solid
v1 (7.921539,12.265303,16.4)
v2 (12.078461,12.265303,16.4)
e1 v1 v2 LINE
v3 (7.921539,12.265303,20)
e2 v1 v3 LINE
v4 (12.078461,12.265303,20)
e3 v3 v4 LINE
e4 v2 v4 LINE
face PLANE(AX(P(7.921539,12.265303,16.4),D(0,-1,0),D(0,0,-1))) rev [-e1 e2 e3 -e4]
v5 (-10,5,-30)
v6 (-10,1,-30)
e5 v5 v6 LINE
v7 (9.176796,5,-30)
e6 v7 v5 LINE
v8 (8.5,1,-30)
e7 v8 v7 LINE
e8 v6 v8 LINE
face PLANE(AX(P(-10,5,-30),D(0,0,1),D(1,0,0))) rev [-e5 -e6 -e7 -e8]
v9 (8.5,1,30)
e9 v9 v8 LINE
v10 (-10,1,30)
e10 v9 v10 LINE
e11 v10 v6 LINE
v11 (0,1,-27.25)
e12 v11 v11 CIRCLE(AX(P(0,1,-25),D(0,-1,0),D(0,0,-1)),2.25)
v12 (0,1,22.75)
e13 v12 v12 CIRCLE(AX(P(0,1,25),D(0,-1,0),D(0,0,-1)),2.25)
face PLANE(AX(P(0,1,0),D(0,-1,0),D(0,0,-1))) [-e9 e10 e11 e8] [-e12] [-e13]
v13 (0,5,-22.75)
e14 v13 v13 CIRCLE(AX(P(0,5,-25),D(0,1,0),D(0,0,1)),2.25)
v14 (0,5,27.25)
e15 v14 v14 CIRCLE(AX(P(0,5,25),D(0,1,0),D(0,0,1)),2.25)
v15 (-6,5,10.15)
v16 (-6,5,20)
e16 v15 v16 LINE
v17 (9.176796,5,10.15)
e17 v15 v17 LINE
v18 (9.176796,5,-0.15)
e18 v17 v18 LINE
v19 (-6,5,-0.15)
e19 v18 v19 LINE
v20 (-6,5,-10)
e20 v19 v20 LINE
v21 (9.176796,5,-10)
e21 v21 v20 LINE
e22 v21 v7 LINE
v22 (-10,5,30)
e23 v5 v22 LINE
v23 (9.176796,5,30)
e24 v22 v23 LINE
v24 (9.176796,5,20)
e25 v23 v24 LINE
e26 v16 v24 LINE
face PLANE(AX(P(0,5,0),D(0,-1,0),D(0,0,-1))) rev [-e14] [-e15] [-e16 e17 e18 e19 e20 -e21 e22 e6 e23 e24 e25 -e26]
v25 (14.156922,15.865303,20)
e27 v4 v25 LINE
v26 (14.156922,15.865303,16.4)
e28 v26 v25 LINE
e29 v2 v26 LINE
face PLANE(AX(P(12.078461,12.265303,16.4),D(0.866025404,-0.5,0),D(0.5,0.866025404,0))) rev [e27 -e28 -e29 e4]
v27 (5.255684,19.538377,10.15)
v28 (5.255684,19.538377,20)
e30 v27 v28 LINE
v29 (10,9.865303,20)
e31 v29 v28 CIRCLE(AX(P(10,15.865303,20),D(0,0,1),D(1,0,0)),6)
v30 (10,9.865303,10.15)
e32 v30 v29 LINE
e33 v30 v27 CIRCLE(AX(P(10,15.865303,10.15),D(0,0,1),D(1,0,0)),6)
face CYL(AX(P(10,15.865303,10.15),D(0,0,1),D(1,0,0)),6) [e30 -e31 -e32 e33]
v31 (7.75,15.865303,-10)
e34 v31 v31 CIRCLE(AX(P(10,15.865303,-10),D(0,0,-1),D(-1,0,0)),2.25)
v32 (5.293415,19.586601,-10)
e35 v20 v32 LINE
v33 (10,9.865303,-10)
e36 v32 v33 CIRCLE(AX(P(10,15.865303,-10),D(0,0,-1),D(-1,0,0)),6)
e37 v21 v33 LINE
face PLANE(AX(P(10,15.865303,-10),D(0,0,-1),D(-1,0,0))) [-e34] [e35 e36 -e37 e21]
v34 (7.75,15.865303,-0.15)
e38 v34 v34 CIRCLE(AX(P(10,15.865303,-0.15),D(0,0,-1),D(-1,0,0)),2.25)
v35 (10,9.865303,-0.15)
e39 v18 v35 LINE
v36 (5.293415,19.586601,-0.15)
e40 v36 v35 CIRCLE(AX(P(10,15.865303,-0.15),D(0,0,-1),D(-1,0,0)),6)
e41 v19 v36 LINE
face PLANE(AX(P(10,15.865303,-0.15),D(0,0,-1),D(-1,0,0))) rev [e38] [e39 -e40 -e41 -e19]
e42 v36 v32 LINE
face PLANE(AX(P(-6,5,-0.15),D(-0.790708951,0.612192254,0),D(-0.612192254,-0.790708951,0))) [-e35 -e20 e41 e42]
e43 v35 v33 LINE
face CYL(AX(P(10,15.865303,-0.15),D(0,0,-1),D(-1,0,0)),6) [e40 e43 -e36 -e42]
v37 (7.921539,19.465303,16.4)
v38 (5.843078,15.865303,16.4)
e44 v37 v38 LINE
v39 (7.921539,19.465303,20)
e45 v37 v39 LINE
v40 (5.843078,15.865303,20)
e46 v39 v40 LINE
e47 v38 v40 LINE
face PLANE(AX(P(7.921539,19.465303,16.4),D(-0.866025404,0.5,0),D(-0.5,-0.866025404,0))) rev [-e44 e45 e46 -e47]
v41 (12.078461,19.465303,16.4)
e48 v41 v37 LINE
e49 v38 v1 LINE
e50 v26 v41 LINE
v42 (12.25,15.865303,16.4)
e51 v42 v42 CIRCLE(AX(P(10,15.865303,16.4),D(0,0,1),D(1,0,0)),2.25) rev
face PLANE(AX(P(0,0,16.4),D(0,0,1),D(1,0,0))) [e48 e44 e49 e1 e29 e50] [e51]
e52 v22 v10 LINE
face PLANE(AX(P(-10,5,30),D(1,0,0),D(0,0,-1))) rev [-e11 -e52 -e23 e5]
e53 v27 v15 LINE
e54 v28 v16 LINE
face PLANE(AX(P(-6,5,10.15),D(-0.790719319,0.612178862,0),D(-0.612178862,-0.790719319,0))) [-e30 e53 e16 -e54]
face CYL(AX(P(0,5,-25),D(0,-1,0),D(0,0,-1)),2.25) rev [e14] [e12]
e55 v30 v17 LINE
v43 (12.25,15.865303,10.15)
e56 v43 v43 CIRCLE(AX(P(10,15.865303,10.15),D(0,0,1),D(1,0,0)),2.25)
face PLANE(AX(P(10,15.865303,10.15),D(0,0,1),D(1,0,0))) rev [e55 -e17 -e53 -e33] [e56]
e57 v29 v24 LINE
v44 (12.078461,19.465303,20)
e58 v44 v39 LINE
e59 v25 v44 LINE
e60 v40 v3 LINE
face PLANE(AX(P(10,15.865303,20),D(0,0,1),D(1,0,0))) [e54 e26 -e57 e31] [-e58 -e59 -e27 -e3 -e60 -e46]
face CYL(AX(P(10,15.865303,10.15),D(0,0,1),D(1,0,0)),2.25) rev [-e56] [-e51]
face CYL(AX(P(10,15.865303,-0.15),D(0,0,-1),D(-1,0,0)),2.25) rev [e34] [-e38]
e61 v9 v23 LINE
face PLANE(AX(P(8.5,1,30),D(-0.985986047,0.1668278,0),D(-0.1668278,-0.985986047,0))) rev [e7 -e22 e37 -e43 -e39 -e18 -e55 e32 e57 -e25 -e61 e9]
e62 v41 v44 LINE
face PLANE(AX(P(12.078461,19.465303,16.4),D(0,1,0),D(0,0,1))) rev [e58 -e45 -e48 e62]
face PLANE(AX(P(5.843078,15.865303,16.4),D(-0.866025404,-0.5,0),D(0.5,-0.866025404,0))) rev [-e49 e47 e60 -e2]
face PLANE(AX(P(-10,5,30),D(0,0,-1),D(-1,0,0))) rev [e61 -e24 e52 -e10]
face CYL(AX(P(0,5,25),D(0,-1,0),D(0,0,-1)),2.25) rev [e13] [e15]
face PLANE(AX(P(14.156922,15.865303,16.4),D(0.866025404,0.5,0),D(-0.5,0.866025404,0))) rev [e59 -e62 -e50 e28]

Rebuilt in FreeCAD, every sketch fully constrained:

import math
import FreeCAD as App
import Part
import Sketcher
Q = App.Units.Quantity

doc = App.newDocument("Part")
params = doc.addObject("Spreadsheet::Sheet", "Params")
for row, (alias, value) in enumerate([
    ("sketch1_diameter", "4.5 mm"),
    ("sketch1_width", "20 mm"),
    ("sketch1_height", "60 mm"),
    ("pad1_length", "5 mm"),
    ("sketch2_radius", "6 mm"),
    ("sketch2_diameter", "4.5 mm"),
    ("sketch2_width", "16 mm"),
    ("pad2_length", "9.85 mm"),
    ("sketch3_radius", "6 mm"),
    ("sketch3_diameter", "4.5 mm"),
    ("sketch3_width", "16 mm"),
    ("pad3_length", "9.85 mm"),
    ("pocket1_length", "1 mm"),
    ("sketch5_width", "1.5 mm"),
    ("pocket3_length", "3.6 mm"),
], start=1):
    params.set(f"A{row}", alias)
    params.set(f"B{row}", "=" + value)
    params.setAlias(f"B{row}", alias)

body = doc.addObject("PartDesign::Body", "Body")

sketch1 = doc.addObject("Sketcher::SketchObject", "Sketch")
body.addObject(sketch1)
sketch1.AttachmentSupport = (doc.XZ_Plane, [""])
sketch1.MapMode = "FlatFace"
sketch1.addGeometry([
    Part.LineSegment(App.Vector(-10, -30, 0), App.Vector(-10, 30, 0)),
    Part.LineSegment(App.Vector(-10, 30, 0), App.Vector(10, 30, 0)),
    Part.LineSegment(App.Vector(10, 30, 0), App.Vector(10, -30, 0)),
    Part.LineSegment(App.Vector(10, -30, 0), App.Vector(-10, -30, 0)),
    Part.Circle(App.Vector(0, 25, 0), App.Vector(0, 0, 1), 2.2),
    Part.Circle(App.Vector(0, -25, 0), App.Vector(0, 0, 1), 2.2),
], False)
sketch1.addConstraint([
    Sketcher.Constraint("Coincident", 0, 2, 1, 1),
    Sketcher.Constraint("Coincident", 1, 2, 2, 1),
    Sketcher.Constraint("Coincident", 2, 2, 3, 1),
    Sketcher.Constraint("Coincident", 3, 2, 0, 1),
    Sketcher.Constraint("Vertical", 0),
    Sketcher.Constraint("Horizontal", 1),
    Sketcher.Constraint("Vertical", 2),
    Sketcher.Constraint("Horizontal", 3),
    Sketcher.Constraint("Equal", 4, 5),
    Sketcher.Constraint("Symmetric", 4, 3, 5, 3, -1, 1),
    Sketcher.Constraint("Symmetric", 0, 2, 2, 2, -1, 1),
    Sketcher.Constraint("PointOnObject", 4, 3, -2),
    Sketcher.Constraint("Diameter", 4, 4.5),
    Sketcher.Constraint("DistanceX", 1, 1, 1, 2, 20.0),
    Sketcher.Constraint("DistanceY", 0, 1, 0, 2, 60.0),
    Sketcher.Constraint("DistanceY", -1, 1, 4, 3, 25.0),
])
sketch1.setExpression("Constraints[12]", "Params.sketch1_diameter")
sketch1.setExpression("Constraints[13]", "Params.sketch1_width")
sketch1.setExpression("Constraints[14]", "Params.sketch1_height")
pad1 = doc.addObject("PartDesign::Pad", "Pad")
body.addObject(pad1)
pad1.Profile = sketch1
pad1.setExpression("Length", "Params.pad1_length")
pad1.Reversed = True

sketch2 = doc.addObject("Sketcher::SketchObject", "Sketch001")
body.addObject(sketch2)
sketch2.AttachmentSupport = (doc.XY_Plane, [""])
sketch2.MapMode = "FlatFace"
sketch2.AttachmentOffset = App.Placement(App.Vector(0, 0, 20), App.Rotation())
sketch2.addGeometry([
    Part.LineSegment(App.Vector(10, 5, 0), App.Vector(10, 9.9, 0)),
    Part.ArcOfCircle(Part.Circle(App.Vector(10, 15.9, 0), App.Vector(0, 0, 1), 6), math.radians(-90), math.radians(142)),
    Part.LineSegment(App.Vector(5.3, 19.5, 0), App.Vector(-6, 5, 0)),
    Part.LineSegment(App.Vector(-6, 5, 0), App.Vector(10, 5, 0)),
    Part.Circle(App.Vector(10, 15.9, 0), App.Vector(0, 0, 1), 2.2),
], False)
sketch2.addConstraint([
    Sketcher.Constraint("Coincident", 0, 2, 1, 1),
    Sketcher.Constraint("Tangent", 1, 2, 2, 1),
    Sketcher.Constraint("Coincident", 2, 2, 3, 1),
    Sketcher.Constraint("Coincident", 3, 2, 0, 1),
    Sketcher.Constraint("Vertical", 0),
    Sketcher.Constraint("Horizontal", 3),
    Sketcher.Constraint("Coincident", 4, 3, 1, 3),
    Sketcher.Constraint("Vertical", 4, 3, 0, 2),
    Sketcher.Constraint("Radius", 1, 6.0),
    Sketcher.Constraint("Diameter", 4, 4.5),
    Sketcher.Constraint("DistanceX", 3, 1, 3, 2, 16.0),
    Sketcher.Constraint("DistanceX", -1, 1, 1, 3, 10.0),
    Sketcher.Constraint("DistanceY", -1, 1, 2, 2, 5.0),
    Sketcher.Constraint("DistanceY", 0, 1, 0, 2, 4.865303),
])
sketch2.setExpression("Constraints[8]", "Params.sketch2_radius")
sketch2.setExpression("Constraints[9]", "Params.sketch2_diameter")
sketch2.setExpression("Constraints[10]", "Params.sketch2_width")
pad2 = doc.addObject("PartDesign::Pad", "Pad001")
body.addObject(pad2)
pad2.Profile = sketch2
pad2.setExpression("Length", "Params.pad2_length")
pad2.Reversed = True

sketch3 = doc.addObject("Sketcher::SketchObject", "Sketch002")
body.addObject(sketch3)
sketch3.AttachmentSupport = (doc.XY_Plane, [""])
sketch3.MapMode = "FlatFace"
sketch3.AttachmentOffset = App.Placement(App.Vector(0, 0, -10), App.Rotation())
sketch3.addGeometry([
    Part.LineSegment(App.Vector(10, 9.9, 0), App.Vector(10, 5, 0)),
    Part.LineSegment(App.Vector(10, 5, 0), App.Vector(-6, 5, 0)),
    Part.LineSegment(App.Vector(-6, 5, 0), App.Vector(5.3, 19.6, 0)),
    Part.ArcOfCircle(Part.Circle(App.Vector(10, 15.9, 0), App.Vector(0, 0, 1), 6), math.radians(-90), math.radians(142)),
    Part.Circle(App.Vector(10, 15.9, 0), App.Vector(0, 0, 1), 2.2),
], False)
sketch3.addConstraint([
    Sketcher.Constraint("Coincident", 0, 2, 1, 1),
    Sketcher.Constraint("Coincident", 1, 2, 2, 1),
    Sketcher.Constraint("Coincident", 2, 2, 3, 2),
    Sketcher.Constraint("Coincident", 3, 1, 0, 1),
    Sketcher.Constraint("Vertical", 0),
    Sketcher.Constraint("Horizontal", 1),
    Sketcher.Constraint("Coincident", 4, 3, 3, 3),
    Sketcher.Constraint("Vertical", 4, 3, 0, 2),
    Sketcher.Constraint("Radius", 3, 6.0),
    Sketcher.Constraint("Diameter", 4, 4.5),
    Sketcher.Constraint("DistanceX", 1, 2, 1, 1, 16.0),
    Sketcher.Constraint("DistanceX", -1, 1, 3, 3, 10.0),
    Sketcher.Constraint("DistanceY", -1, 1, 0, 2, 5.0),
    Sketcher.Constraint("DistanceY", -1, 1, 2, 2, 19.586601),
    Sketcher.Constraint("DistanceY", 3, 3, 2, 2, 3.721298),
])
sketch3.setExpression("Constraints[8]", "Params.sketch3_radius")
sketch3.setExpression("Constraints[9]", "Params.sketch3_diameter")
sketch3.setExpression("Constraints[10]", "Params.sketch3_width")
pad3 = doc.addObject("PartDesign::Pad", "Pad002")
body.addObject(pad3)
pad3.Profile = sketch3
pad3.setExpression("Length", "Params.pad3_length")

sketch4 = doc.addObject("Sketcher::SketchObject", "Sketch003")
body.addObject(sketch4)
sketch4.AttachmentSupport = (doc.XZ_Plane, [""])
sketch4.MapMode = "FlatFace"
sketch4.addGeometry([
    Part.LineSegment(App.Vector(-15, 35, 0), App.Vector(-15, -38, 0)),
    Part.LineSegment(App.Vector(-15, -38, 0), App.Vector(18, -38, 0)),
    Part.LineSegment(App.Vector(18, -38, 0), App.Vector(18, 35, 0)),
    Part.LineSegment(App.Vector(18, 35, 0), App.Vector(-15, 35, 0)),
], False)
sketch4.addConstraint([
    Sketcher.Constraint("Coincident", 0, 2, 1, 1),
    Sketcher.Constraint("Coincident", 1, 2, 2, 1),
    Sketcher.Constraint("Coincident", 2, 2, 3, 1),
    Sketcher.Constraint("Coincident", 3, 2, 0, 1),
    Sketcher.Constraint("Vertical", 0),
    Sketcher.Constraint("Horizontal", 1),
    Sketcher.Constraint("Vertical", 2),
    Sketcher.Constraint("Horizontal", 3),
    Sketcher.Constraint("DistanceX", 1, 1, 1, 2, 33.827009),
    Sketcher.Constraint("DistanceY", 0, 2, 0, 1, 72.568077),
    Sketcher.Constraint("DistanceY", -1, 1, 2, 2, 34.50557),
    Sketcher.Constraint("DistanceX", 0, 2, -1, 1, 15.424923),
])
pocket1 = doc.addObject("PartDesign::Pocket", "Pocket")
body.addObject(pocket1)
pocket1.Profile = sketch4
pocket1.setExpression("Length", "Params.pocket1_length")

sketch5 = doc.addObject("Sketcher::SketchObject", "Sketch004")
body.addObject(sketch5)
sketch5.AttachmentSupport = (doc.XY_Plane, [""])
sketch5.MapMode = "FlatFace"
sketch5.AttachmentOffset = App.Placement(App.Vector(0, 0, -30), App.Rotation())
sketch5.addGeometry([
    Part.LineSegment(App.Vector(10, 9.9, 0), App.Vector(10, 1, 0)),
    Part.LineSegment(App.Vector(10, 1, 0), App.Vector(8.5, 1, 0)),
    Part.LineSegment(App.Vector(8.5, 1, 0), App.Vector(10, 9.9, 0)),
], False)
sketch5.addConstraint([
    Sketcher.Constraint("Coincident", 0, 2, 1, 1),
    Sketcher.Constraint("Coincident", 1, 2, 2, 1),
    Sketcher.Constraint("Coincident", 2, 2, 0, 1),
    Sketcher.Constraint("Vertical", 0),
    Sketcher.Constraint("Horizontal", 1),
    Sketcher.Constraint("DistanceX", 1, 2, 1, 1, 1.5),
    Sketcher.Constraint("DistanceX", -1, 1, 0, 2, 10.0),
    Sketcher.Constraint("DistanceY", -1, 1, 0, 2, 1.0),
    Sketcher.Constraint("DistanceY", 0, 2, 0, 1, 8.865303),
])
sketch5.setExpression("Constraints[5]", "Params.sketch5_width")
pocket2 = doc.addObject("PartDesign::Pocket", "Pocket001")
body.addObject(pocket2)
pocket2.Profile = sketch5
pocket2.Type = "ThroughAll"
pocket2.Reversed = True

sketch6 = doc.addObject("Sketcher::SketchObject", "Sketch005")
body.addObject(sketch6)
sketch6.AttachmentSupport = (doc.XY_Plane, [""])
sketch6.MapMode = "FlatFace"
sketch6.AttachmentOffset = App.Placement(App.Vector(0, 0, 20), App.Rotation())
sketch6.addGeometry([
    Part.LineSegment(App.Vector(12.1, 12.3, 0), App.Vector(14.2, 15.9, 0)),
    Part.LineSegment(App.Vector(14.2, 15.9, 0), App.Vector(12.1, 19.5, 0)),
    Part.LineSegment(App.Vector(12.1, 19.5, 0), App.Vector(7.9, 19.5, 0)),
    Part.LineSegment(App.Vector(7.9, 19.5, 0), App.Vector(5.8, 15.9, 0)),
    Part.LineSegment(App.Vector(5.8, 15.9, 0), App.Vector(7.9, 12.3, 0)),
    Part.LineSegment(App.Vector(7.9, 12.3, 0), App.Vector(12.1, 12.3, 0)),
], False)
sketch6.addConstraint([
    Sketcher.Constraint("Coincident", 0, 2, 1, 1),
    Sketcher.Constraint("Coincident", 1, 2, 2, 1),
    Sketcher.Constraint("Coincident", 2, 2, 3, 1),
    Sketcher.Constraint("Coincident", 3, 2, 4, 1),
    Sketcher.Constraint("Coincident", 4, 2, 5, 1),
    Sketcher.Constraint("Coincident", 5, 2, 0, 1),
    Sketcher.Constraint("Horizontal", 2),
    Sketcher.Constraint("Horizontal", 5),
    Sketcher.Constraint("Parallel", 0, 3),
    Sketcher.Constraint("Parallel", 1, 4),
    Sketcher.Constraint("Horizontal", 0, 2, 3, 2),
    Sketcher.Constraint("Vertical", 2, 2, 4, 2),
    Sketcher.Constraint("Vertical", 1, 2, 5, 2),
    Sketcher.Constraint("Angle", 0, Q("60 deg")),
    Sketcher.Constraint("DistanceY", 0, 2, 1, 2, 3.6),
    Sketcher.Constraint("DistanceX", 2, 2, 2, 1, 4.156922),
    Sketcher.Constraint("DistanceX", -1, 1, 0, 2, 14.156922),
    Sketcher.Constraint("DistanceY", -1, 1, 0, 2, 15.865303),
])
pocket3 = doc.addObject("PartDesign::Pocket", "Pocket002")
body.addObject(pocket3)
pocket3.Profile = sketch6
pocket3.setExpression("Length", "Params.pocket3_length")

doc.recompute()
